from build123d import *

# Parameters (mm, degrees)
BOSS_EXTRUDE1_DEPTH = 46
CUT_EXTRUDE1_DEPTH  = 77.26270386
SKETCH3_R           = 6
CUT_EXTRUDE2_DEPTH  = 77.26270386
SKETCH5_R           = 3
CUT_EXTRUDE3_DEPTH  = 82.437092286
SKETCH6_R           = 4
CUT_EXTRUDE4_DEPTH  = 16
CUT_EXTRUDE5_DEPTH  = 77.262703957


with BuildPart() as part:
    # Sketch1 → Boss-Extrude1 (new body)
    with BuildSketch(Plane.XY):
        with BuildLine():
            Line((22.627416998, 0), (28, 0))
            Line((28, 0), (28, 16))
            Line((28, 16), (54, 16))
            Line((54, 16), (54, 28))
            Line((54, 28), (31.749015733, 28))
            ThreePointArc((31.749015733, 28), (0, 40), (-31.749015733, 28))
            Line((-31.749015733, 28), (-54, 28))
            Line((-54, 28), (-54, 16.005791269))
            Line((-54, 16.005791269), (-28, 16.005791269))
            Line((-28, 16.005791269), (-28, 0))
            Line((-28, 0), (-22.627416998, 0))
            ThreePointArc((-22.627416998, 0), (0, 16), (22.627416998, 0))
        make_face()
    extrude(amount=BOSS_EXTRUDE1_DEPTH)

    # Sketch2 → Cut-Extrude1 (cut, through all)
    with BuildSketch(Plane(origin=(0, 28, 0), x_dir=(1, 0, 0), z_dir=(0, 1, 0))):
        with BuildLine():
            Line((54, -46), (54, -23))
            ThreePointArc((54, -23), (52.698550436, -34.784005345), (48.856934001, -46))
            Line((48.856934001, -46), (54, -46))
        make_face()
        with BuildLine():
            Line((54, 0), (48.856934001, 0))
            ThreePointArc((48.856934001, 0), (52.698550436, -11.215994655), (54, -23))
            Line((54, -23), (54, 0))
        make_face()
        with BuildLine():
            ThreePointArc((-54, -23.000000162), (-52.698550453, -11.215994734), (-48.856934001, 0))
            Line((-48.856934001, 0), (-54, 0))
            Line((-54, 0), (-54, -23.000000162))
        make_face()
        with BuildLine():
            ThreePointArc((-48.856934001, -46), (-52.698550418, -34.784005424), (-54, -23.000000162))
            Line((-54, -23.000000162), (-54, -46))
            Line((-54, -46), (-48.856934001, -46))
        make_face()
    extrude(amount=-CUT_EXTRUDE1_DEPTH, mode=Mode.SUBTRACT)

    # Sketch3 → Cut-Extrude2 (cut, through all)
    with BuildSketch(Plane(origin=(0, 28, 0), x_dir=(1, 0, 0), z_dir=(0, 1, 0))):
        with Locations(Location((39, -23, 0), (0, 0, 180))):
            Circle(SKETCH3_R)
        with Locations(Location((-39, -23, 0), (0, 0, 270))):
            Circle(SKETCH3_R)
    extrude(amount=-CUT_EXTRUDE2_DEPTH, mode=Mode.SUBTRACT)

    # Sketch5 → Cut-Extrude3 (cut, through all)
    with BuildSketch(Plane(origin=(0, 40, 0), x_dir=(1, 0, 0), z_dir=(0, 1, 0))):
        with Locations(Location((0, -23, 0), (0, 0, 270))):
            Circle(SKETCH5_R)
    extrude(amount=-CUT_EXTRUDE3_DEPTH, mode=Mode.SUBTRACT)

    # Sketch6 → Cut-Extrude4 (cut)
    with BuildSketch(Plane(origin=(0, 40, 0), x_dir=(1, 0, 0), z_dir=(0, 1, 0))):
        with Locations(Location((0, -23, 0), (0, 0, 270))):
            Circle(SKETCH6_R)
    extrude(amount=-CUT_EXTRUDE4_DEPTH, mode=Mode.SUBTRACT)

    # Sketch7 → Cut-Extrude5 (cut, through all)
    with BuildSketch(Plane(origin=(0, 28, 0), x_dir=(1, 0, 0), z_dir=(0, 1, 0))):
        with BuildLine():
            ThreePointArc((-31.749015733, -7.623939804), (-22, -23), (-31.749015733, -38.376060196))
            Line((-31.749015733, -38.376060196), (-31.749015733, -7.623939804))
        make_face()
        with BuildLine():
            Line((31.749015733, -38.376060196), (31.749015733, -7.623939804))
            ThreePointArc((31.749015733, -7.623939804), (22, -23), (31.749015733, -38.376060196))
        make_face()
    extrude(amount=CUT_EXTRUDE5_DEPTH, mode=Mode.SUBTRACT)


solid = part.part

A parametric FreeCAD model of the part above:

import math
import FreeCAD as App
import Part
import Sketcher
Q = App.Units.Quantity

doc = App.newDocument("Part")
body = doc.addObject("PartDesign::Body", "Body")

# Sketch on XY plane
sketch1 = body.newObject("Sketcher::SketchObject", "Sketch")
sketch1.AttachmentSupport = (doc.getObject("XY_Plane"), [""])
sketch1.MapMode = "FlatFace"
sketch1.addGeometry(Part.LineSegment(App.Vector(22.627417, 0, 0), App.Vector(28, 0, 0)), False)
sketch1.addGeometry(Part.LineSegment(App.Vector(28, 0, 0), App.Vector(28, 16, 0)), False)
sketch1.addGeometry(Part.LineSegment(App.Vector(28, 16, 0), App.Vector(54, 16, 0)), False)
sketch1.addGeometry(Part.LineSegment(App.Vector(54, 16, 0), App.Vector(54, 28, 0)), False)
sketch1.addGeometry(Part.LineSegment(App.Vector(54, 28, 0), App.Vector(31.749016, 28, 0)), False)
sketch1.addGeometry(Part.ArcOfCircle(Part.Circle(App.Vector(0, -8, 0), App.Vector(0, 0, 1), 48), math.radians(48.590378), math.radians(131.409622)), False)
sketch1.addGeometry(Part.LineSegment(App.Vector(-31.749016, 28, 0), App.Vector(-54, 28, 0)), False)
sketch1.addGeometry(Part.LineSegment(App.Vector(-54, 28, 0), App.Vector(-54, 16.005791, 0)), False)
sketch1.addGeometry(Part.LineSegment(App.Vector(-54, 16.005791, 0), App.Vector(-28, 16.005791, 0)), False)
sketch1.addGeometry(Part.LineSegment(App.Vector(-28, 16.005791, 0), App.Vector(-28, 0, 0)), False)
sketch1.addGeometry(Part.LineSegment(App.Vector(-28, 0, 0), App.Vector(-22.627417, 0, 0)), False)
sketch1.addGeometry(Part.ArcOfCircle(Part.Circle(App.Vector(0, -8, 0), App.Vector(0, 0, 1), 24), math.radians(19.471221), math.radians(160.528779)), False)
sketch1.addConstraint(Sketcher.Constraint("Coincident", 0, 2, 1, 1))
sketch1.addConstraint(Sketcher.Constraint("Coincident", 1, 2, 2, 1))
sketch1.addConstraint(Sketcher.Constraint("Coincident", 2, 2, 3, 1))
sketch1.addConstraint(Sketcher.Constraint("Coincident", 3, 2, 4, 1))
sketch1.addConstraint(Sketcher.Constraint("Coincident", 4, 2, 5, 1))
sketch1.addConstraint(Sketcher.Constraint("Coincident", 5, 2, 6, 1))
sketch1.addConstraint(Sketcher.Constraint("Coincident", 6, 2, 7, 1))
sketch1.addConstraint(Sketcher.Constraint("Coincident", 7, 2, 8, 1))
sketch1.addConstraint(Sketcher.Constraint("Coincident", 8, 2, 9, 1))
sketch1.addConstraint(Sketcher.Constraint("Coincident", 9, 2, 10, 1))
sketch1.addConstraint(Sketcher.Constraint("Coincident", 10, 2, 11, 2))
sketch1.addConstraint(Sketcher.Constraint("Coincident", 11, 1, 0, 1))
sketch1.addConstraint(Sketcher.Constraint("Horizontal", 0))
sketch1.addConstraint(Sketcher.Constraint("Vertical", 1))
sketch1.addConstraint(Sketcher.Constraint("Horizontal", 2))
sketch1.addConstraint(Sketcher.Constraint("Vertical", 3))
sketch1.addConstraint(Sketcher.Constraint("Horizontal", 4))
sketch1.addConstraint(Sketcher.Constraint("Horizontal", 6))
sketch1.addConstraint(Sketcher.Constraint("Vertical", 7))
sketch1.addConstraint(Sketcher.Constraint("Horizontal", 8))
sketch1.addConstraint(Sketcher.Constraint("Vertical", 9))
sketch1.addConstraint(Sketcher.Constraint("Horizontal", 10))
sketch1.addConstraint(Sketcher.Constraint("Coincident", 11, 3, 5, 3))
sketch1.addConstraint(Sketcher.Constraint("Symmetric", 0, 2, 9, 2, -1, 1))
sketch1.addConstraint(Sketcher.Constraint("Symmetric", 4, 2, 5, 2, -2))
sketch1.addConstraint(Sketcher.Constraint("PointOnObject", 0, 2, -1))
sketch1.addConstraint(Sketcher.Constraint("Equal", 4, 6))
sketch1.addConstraint(Sketcher.Constraint("Radius", 5, Q("48 mm")))
sketch1.addConstraint(Sketcher.Constraint("Radius", 11, Q("24 mm")))
sketch1.addConstraint(Sketcher.Constraint("DistanceX", 2, 1, 2, 2, Q("26 mm")))
sketch1.addConstraint(Sketcher.Constraint("DistanceY", 1, 1, 1, 2, Q("16 mm")))
sketch1.addConstraint(Sketcher.Constraint("DistanceY", 3, 1, 3, 2, Q("12 mm")))
sketch1.addConstraint(Sketcher.Constraint("DistanceY", 5, 3, -1, 1, Q("8 mm")))
sketch1.addConstraint(Sketcher.Constraint("DistanceX", -1, 1, 0, 2, Q("28 mm")))
sketch1.addConstraint(Sketcher.Constraint("DistanceY", 7, 2, 7, 1, Q("11.994209 mm")))
pad1 = body.newObject("PartDesign::Pad", "Pad")
pad1.Profile = sketch1
pad1.Length = 46

# Sketch on XZ plane
sketch2 = body.newObject("Sketcher::SketchObject", "Sketch001")
sketch2.AttachmentSupport = (doc.getObject("XZ_Plane"), [""])
sketch2.MapMode = "FlatFace"
sketch2.AttachmentOffset = App.Placement(App.Vector(0, 0, -28), App.Rotation())
sketch2.addGeometry(Part.LineSegment(App.Vector(54, 46, 0), App.Vector(54, 23, 0)), False)
sketch2.addGeometry(Part.ArcOfCircle(Part.Circle(App.Vector(0, 23, 0), App.Vector(0, 0, 1), 54), math.radians(0), math.radians(25.209286)), False)
sketch2.addGeometry(Part.LineSegment(App.Vector(48.856934, 46, 0), App.Vector(54, 46, 0)), False)
sketch2.addGeometry(Part.LineSegment(App.Vector(54, 0, 0), App.Vector(48.856934, 0, 0)), False)
sketch2.addGeometry(Part.ArcOfCircle(Part.Circle(App.Vector(0, 23, 0), App.Vector(0, 0, 1), 54), math.radians(-25.209286), math.radians(0)), False)
sketch2.addGeometry(Part.LineSegment(App.Vector(54, 23, 0), App.Vector(54, 0, 0)), False)
sketch2.addGeometry(Part.ArcOfCircle(Part.Circle(App.Vector(0, 23, 0), App.Vector(0, 0, 1), 54), math.radians(180), math.radians(205.209286)), False)
sketch2.addGeometry(Part.LineSegment(App.Vector(-48.856934, 0, 0), App.Vector(-54, 0, 0)), False)
sketch2.addGeometry(Part.LineSegment(App.Vector(-54, 0, 0), App.Vector(-54, 23, 0)), False)
sketch2.addGeometry(Part.ArcOfCircle(Part.Circle(App.Vector(0, 23, 0), App.Vector(0, 0, 1), 54), math.radians(154.790714), math.radians(180)), False)
sketch2.addGeometry(Part.LineSegment(App.Vector(-54, 23, 0), App.Vector(-54, 46, 0)), False)
sketch2.addGeometry(Part.LineSegment(App.Vector(-54, 46, 0), App.Vector(-48.856934, 46, 0)), False)
sketch2.addConstraint(Sketcher.Constraint("Tangent", 0, 2, 1, 1))
sketch2.addConstraint(Sketcher.Constraint("Coincident", 1, 2, 2, 1))
sketch2.addConstraint(Sketcher.Constraint("Coincident", 2, 2, 0, 1))
sketch2.addConstraint(Sketcher.Constraint("Coincident", 3, 2, 4, 1))
sketch2.addConstraint(Sketcher.Constraint("Tangent", 4, 2, 5, 1))
sketch2.addConstraint(Sketcher.Constraint("Coincident", 5, 2, 3, 1))
sketch2.addConstraint(Sketcher.Constraint("Coincident", 6, 2, 7, 1))
sketch2.addConstraint(Sketcher.Constraint("Coincident", 7, 2, 8, 1))
sketch2.addConstraint(Sketcher.Constraint("Tangent", 8, 2, 6, 1))
sketch2.addConstraint(Sketcher.Constraint("Tangent", 9, 2, 10, 1))
sketch2.addConstraint(Sketcher.Constraint("Coincident", 10, 2, 11, 1))
sketch2.addConstraint(Sketcher.Constraint("Coincident", 11, 2, 9, 1))
sketch2.addConstraint(Sketcher.Constraint("Vertical", 0))
sketch2.addConstraint(Sketcher.Constraint("Horizontal", 2))
sketch2.addConstraint(Sketcher.Constraint("Horizontal", 3))
sketch2.addConstraint(Sketcher.Constraint("Vertical", 5))
sketch2.addConstraint(Sketcher.Constraint("Horizontal", 7))
sketch2.addConstraint(Sketcher.Constraint("Vertical", 8))
sketch2.addConstraint(Sketcher.Constraint("Vertical", 10))
sketch2.addConstraint(Sketcher.Constraint("Horizontal", 11))
sketch2.addConstraint(Sketcher.Constraint("Coincident", 4, 3, 1, 3))
sketch2.addConstraint(Sketcher.Constraint("Coincident", 6, 3, 1, 3))
sketch2.addConstraint(Sketcher.Constraint("Coincident", 9, 3, 1, 3))
sketch2.addConstraint(Sketcher.Constraint("Equal", 1, 4))
sketch2.addConstraint(Sketcher.Constraint("Equal", 4, 6))
sketch2.addConstraint(Sketcher.Constraint("Equal", 6, 9))
sketch2.addConstraint(Sketcher.Constraint("Symmetric", 3, 2, 6, 2, -1, 1))
sketch2.addConstraint(Sketcher.Constraint("Symmetric", 2, 2, 10, 2, -2))
sketch2.addConstraint(Sketcher.Constraint("Vertical", 1, 2, 3, 2))
sketch2.addConstraint(Sketcher.Constraint("Radius", 1, Q("54 mm")))
sketch2.addConstraint(Sketcher.Constraint("DistanceY", 0, 2, 0, 1, Q("23 mm")))
pocket1 = body.newObject("PartDesign::Pocket", "Pocket")
pocket1.Profile = sketch2
pocket1.Type = "ThroughAll"
pocket1.Reversed = True

# Sketch on XZ plane
sketch3 = body.newObject("Sketcher::SketchObject", "Sketch002")
sketch3.AttachmentSupport = (doc.getObject("XZ_Plane"), [""])
sketch3.MapMode = "FlatFace"
sketch3.AttachmentOffset = App.Placement(App.Vector(0, 0, -28), App.Rotation())
sketch3.addGeometry(Part.Circle(App.Vector(39, 23, 0), App.Vector(0, 0, 1), 6), False)
sketch3.addGeometry(Part.Circle(App.Vector(-39, 23, 0), App.Vector(0, 0, 1), 6), False)
sketch3.addConstraint(Sketcher.Constraint("Equal", 0, 1))
sketch3.addConstraint(Sketcher.Constraint("Symmetric", 0, 3, 1, 3, -2))
sketch3.addConstraint(Sketcher.Constraint("Diameter", 0, Q("12 mm")))
sketch3.addConstraint(Sketcher.Constraint("DistanceX", -1, 1, 0, 3, Q("39 mm")))
sketch3.addConstraint(Sketcher.Constraint("DistanceY", -1, 1, 0, 3, Q("23 mm")))
pocket2 = body.newObject("PartDesign::Pocket", "Pocket001")
pocket2.Profile = sketch3
pocket2.Type = "ThroughAll"
pocket2.Reversed = True

# Sketch on XZ plane
sketch4 = body.newObject("Sketcher::SketchObject", "Sketch003")
sketch4.AttachmentSupport = (doc.getObject("XZ_Plane"), [""])
sketch4.MapMode = "FlatFace"
sketch4.AttachmentOffset = App.Placement(App.Vector(0, 0, -40), App.Rotation())
sketch4.addGeometry(Part.Circle(App.Vector(0, 23, 0), App.Vector(0, 0, 1), 3), False)
sketch4.addConstraint(Sketcher.Constraint("PointOnObject", 0, 3, -2))
sketch4.addConstraint(Sketcher.Constraint("Diameter", 0, Q("6 mm")))
sketch4.addConstraint(Sketcher.Constraint("DistanceY", -1, 1, 0, 3, Q("23 mm")))
pocket3 = body.newObject("PartDesign::Pocket", "Pocket002")
pocket3.Profile = sketch4
pocket3.Type = "ThroughAll"
pocket3.Reversed = True

# Sketch on XZ plane
sketch5 = body.newObject("Sketcher::SketchObject", "Sketch004")
sketch5.AttachmentSupport = (doc.getObject("XZ_Plane"), [""])
sketch5.MapMode = "FlatFace"
sketch5.AttachmentOffset = App.Placement(App.Vector(0, 0, -40), App.Rotation())
sketch5.addGeometry(Part.Circle(App.Vector(0, 23, 0), App.Vector(0, 0, 1), 4), False)
sketch5.addConstraint(Sketcher.Constraint("PointOnObject", 0, 3, -2))
sketch5.addConstraint(Sketcher.Constraint("Diameter", 0, Q("8 mm")))
sketch5.addConstraint(Sketcher.Constraint("DistanceY", -1, 1, 0, 3, Q("23 mm")))
pocket4 = body.newObject("PartDesign::Pocket", "Pocket003")
pocket4.Profile = sketch5
pocket4.Length = 16
pocket4.Reversed = True

# Sketch on XZ plane
sketch6 = body.newObject("Sketcher::SketchObject", "Sketch005")
sketch6.AttachmentSupport = (doc.getObject("XZ_Plane"), [""])
sketch6.MapMode = "FlatFace"
sketch6.AttachmentOffset = App.Placement(App.Vector(0, 0, -28), App.Rotation())
sketch6.addGeometry(Part.ArcOfCircle(Part.Circle(App.Vector(-39, 23, 0), App.Vector(0, 0, 1), 17), math.radians(-64.75255), math.radians(64.75255)), False)
sketch6.addGeometry(Part.LineSegment(App.Vector(-31.749016, 7.62394, 0), App.Vector(-31.749016, 38.37606, 0)), False)
sketch6.addGeometry(Part.LineSegment(App.Vector(31.749016, 38.37606, 0), App.Vector(31.749016, 7.62394, 0)), False)
sketch6.addGeometry(Part.ArcOfCircle(Part.Circle(App.Vector(39, 23, 0), App.Vector(0, 0, 1), 17), math.radians(115.24745), math.radians(244.75255)), False)
sketch6.addConstraint(Sketcher.Constraint("Coincident", 0, 1, 1, 1))
sketch6.addConstraint(Sketcher.Constraint("Coincident", 1, 2, 0, 2))
sketch6.addConstraint(Sketcher.Constraint("Coincident", 2, 1, 3, 1))
sketch6.addConstraint(Sketcher.Constraint("Coincident", 3, 2, 2, 2))
sketch6.addConstraint(Sketcher.Constraint("Vertical", 1))
sketch6.addConstraint(Sketcher.Constraint("Vertical", 2))
sketch6.addConstraint(Sketcher.Constraint("Equal", 0, 3))
sketch6.addConstraint(Sketcher.Constraint("Symmetric", 0, 3, 3, 3, -2))
sketch6.addConstraint(Sketcher.Constraint("Horizontal", 1, 2, 2, 1))
sketch6.addConstraint(Sketcher.Constraint("Radius", 0, Q("17 mm")))
sketch6.addConstraint(Sketcher.Constraint("DistanceX", 0, 3, -1, 1, Q("39 mm")))
sketch6.addConstraint(Sketcher.Constraint("DistanceY", -1, 1, 0, 3, Q("23 mm")))
sketch6.addConstraint(Sketcher.Constraint("DistanceY", 1, 1, 1, 2, Q("30.75212 mm")))
pocket5 = body.newObject("PartDesign::Pocket", "Pocket004")
pocket5.Profile = sketch6
pocket5.Type = "ThroughAll"

doc.recompute()
